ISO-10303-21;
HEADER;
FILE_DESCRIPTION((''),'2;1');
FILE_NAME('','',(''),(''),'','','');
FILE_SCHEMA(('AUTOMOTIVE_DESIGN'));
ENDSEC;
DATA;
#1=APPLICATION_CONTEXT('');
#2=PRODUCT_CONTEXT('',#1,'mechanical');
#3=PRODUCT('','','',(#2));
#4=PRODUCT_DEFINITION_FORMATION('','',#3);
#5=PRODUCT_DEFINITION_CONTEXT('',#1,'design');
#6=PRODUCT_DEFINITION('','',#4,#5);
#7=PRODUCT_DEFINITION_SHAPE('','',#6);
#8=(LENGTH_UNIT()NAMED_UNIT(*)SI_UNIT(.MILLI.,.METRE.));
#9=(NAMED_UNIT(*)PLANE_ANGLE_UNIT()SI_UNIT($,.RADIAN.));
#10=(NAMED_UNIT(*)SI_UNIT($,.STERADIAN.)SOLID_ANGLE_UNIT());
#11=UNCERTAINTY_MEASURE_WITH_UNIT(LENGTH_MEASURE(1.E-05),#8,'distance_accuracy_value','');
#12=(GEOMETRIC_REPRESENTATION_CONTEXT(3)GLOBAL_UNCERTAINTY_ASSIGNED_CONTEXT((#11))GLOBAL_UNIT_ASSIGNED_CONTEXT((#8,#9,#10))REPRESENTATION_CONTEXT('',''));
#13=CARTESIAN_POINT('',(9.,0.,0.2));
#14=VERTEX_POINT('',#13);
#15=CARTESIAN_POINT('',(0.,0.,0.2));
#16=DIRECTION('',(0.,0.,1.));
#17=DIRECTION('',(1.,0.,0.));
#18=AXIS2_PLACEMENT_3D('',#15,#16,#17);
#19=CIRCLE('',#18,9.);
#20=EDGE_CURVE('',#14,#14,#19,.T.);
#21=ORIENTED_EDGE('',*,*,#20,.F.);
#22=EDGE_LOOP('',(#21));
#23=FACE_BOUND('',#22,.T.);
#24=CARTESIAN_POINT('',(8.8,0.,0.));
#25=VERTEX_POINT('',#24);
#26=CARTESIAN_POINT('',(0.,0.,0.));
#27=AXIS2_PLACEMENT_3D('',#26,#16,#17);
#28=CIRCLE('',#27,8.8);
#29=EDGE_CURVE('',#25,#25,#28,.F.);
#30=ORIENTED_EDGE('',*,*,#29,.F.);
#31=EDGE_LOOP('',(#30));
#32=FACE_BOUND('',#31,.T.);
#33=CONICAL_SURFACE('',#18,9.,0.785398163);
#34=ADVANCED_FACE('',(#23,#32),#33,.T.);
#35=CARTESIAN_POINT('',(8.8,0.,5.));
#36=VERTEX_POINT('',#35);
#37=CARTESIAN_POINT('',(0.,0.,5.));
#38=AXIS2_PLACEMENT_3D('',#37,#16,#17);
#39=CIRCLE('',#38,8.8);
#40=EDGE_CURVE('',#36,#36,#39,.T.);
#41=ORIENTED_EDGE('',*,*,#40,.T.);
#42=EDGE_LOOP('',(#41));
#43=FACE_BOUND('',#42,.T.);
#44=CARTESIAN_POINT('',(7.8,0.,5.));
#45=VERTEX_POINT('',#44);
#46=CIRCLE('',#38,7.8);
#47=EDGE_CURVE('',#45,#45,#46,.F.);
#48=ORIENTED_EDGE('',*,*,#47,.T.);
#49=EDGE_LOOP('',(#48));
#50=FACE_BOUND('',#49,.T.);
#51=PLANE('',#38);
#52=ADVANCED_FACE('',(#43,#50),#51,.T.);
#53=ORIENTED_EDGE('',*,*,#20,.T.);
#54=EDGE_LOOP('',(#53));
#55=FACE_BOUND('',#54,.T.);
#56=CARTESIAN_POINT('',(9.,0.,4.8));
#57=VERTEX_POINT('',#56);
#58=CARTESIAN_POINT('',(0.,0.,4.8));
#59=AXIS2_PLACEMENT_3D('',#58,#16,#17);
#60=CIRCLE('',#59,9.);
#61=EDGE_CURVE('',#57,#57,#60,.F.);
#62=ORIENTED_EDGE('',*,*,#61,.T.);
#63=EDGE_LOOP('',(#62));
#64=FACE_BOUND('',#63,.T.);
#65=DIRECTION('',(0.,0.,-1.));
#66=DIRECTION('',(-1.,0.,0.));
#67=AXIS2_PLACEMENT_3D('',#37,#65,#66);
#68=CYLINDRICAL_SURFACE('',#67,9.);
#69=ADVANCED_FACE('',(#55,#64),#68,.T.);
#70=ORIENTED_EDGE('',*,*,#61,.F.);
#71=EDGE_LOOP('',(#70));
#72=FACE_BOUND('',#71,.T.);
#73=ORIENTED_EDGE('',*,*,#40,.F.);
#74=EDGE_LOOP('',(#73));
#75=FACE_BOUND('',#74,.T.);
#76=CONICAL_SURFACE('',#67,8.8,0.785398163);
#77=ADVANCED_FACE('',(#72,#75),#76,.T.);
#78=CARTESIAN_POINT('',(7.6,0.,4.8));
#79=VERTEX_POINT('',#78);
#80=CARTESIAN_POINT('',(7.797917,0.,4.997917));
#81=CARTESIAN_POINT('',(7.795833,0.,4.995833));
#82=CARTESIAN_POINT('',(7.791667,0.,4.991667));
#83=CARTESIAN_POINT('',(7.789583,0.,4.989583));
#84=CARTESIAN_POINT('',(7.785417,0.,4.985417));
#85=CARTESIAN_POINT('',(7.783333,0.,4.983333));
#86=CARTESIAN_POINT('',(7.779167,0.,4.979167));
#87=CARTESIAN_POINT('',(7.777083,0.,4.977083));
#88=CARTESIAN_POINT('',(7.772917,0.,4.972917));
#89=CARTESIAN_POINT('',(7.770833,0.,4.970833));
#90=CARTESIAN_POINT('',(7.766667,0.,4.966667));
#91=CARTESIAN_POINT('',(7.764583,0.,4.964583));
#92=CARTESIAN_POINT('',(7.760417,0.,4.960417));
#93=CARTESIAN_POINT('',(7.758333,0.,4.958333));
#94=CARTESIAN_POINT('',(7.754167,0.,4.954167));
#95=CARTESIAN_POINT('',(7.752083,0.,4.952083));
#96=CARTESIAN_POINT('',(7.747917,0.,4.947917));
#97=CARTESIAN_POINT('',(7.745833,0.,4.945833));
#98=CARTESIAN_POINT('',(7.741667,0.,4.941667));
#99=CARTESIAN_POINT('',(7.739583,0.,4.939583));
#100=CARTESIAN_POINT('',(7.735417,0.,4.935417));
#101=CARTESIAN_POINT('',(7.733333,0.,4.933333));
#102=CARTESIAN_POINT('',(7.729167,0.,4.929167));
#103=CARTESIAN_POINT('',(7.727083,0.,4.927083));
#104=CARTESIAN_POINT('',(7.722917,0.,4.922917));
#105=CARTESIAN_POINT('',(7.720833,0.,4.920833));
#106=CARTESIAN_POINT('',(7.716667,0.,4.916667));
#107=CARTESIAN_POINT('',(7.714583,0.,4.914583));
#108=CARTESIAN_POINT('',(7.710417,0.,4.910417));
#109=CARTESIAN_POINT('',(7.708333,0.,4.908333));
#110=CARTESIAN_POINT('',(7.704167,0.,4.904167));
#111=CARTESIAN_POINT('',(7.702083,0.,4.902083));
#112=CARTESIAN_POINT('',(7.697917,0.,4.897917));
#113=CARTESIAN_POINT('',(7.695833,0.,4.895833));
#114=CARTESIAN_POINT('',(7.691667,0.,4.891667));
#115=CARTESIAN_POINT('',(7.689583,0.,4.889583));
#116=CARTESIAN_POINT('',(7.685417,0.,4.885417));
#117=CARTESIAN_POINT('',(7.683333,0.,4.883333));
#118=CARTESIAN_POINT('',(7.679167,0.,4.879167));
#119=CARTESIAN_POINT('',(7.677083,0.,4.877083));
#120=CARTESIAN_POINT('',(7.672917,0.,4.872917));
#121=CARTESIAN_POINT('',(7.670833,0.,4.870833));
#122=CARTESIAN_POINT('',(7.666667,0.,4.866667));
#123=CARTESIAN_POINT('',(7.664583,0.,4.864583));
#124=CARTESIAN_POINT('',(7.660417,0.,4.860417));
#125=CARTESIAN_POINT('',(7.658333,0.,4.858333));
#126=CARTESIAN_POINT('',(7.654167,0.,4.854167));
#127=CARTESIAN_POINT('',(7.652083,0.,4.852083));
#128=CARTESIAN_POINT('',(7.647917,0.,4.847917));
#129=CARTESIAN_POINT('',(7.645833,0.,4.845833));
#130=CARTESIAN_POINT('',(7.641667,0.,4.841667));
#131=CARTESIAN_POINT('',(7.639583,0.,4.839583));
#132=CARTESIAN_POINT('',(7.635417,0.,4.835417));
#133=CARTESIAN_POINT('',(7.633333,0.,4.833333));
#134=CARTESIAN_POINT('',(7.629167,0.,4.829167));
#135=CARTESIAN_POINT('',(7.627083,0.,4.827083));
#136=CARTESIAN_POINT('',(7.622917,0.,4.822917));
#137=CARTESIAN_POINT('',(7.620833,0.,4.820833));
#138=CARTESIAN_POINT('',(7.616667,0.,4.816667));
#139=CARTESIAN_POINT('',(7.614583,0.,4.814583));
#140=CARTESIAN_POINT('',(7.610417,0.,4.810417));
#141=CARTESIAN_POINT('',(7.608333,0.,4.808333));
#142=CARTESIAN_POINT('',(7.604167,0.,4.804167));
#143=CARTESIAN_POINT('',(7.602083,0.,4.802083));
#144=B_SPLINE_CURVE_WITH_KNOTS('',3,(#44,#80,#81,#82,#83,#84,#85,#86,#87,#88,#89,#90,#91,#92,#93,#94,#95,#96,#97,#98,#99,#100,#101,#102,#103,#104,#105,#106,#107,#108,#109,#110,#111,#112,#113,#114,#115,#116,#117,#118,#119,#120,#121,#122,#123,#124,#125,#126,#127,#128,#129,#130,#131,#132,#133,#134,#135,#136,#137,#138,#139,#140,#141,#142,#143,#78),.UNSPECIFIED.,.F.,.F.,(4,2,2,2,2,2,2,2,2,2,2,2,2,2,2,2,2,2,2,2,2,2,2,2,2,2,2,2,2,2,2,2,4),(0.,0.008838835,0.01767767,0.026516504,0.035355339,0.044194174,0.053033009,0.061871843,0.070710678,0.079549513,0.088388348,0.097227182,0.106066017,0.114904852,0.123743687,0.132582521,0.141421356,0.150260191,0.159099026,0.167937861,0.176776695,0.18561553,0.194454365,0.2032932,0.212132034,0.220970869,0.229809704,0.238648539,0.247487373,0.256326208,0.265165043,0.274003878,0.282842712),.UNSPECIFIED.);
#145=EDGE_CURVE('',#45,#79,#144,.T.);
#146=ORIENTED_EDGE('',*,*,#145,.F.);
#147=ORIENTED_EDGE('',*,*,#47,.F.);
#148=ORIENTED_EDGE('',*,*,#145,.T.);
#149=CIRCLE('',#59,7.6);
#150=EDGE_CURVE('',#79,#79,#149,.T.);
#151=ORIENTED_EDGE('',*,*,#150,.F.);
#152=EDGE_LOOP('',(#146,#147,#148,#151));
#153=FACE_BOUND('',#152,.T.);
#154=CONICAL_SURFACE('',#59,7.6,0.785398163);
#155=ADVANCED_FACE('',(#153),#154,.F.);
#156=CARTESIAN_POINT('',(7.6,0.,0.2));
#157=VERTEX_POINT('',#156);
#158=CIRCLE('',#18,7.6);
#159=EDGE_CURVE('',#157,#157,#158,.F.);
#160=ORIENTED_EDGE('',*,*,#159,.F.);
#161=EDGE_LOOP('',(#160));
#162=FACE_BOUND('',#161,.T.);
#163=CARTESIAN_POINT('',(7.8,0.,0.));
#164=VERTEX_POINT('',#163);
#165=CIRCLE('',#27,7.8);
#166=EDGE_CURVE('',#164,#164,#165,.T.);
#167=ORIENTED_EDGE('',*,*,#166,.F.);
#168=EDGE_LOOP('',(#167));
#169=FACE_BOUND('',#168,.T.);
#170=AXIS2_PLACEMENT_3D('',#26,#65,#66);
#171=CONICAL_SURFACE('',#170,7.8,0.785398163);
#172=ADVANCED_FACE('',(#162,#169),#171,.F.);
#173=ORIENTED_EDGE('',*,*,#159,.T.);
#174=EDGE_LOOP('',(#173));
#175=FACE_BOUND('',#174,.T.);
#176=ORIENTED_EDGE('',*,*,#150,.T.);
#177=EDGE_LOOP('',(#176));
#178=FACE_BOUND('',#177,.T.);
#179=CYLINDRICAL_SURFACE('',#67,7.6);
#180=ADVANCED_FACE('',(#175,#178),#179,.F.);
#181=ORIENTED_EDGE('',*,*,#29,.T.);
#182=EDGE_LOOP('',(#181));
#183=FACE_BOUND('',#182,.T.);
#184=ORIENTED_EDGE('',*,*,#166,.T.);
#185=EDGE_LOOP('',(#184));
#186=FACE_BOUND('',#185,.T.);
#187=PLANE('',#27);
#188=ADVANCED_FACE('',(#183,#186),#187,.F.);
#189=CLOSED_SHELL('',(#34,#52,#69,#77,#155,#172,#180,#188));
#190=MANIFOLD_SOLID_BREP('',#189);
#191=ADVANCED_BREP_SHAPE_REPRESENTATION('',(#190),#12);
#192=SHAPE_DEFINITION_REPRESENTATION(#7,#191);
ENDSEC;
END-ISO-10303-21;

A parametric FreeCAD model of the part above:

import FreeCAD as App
import Part
import Sketcher
Q = App.Units.Quantity


def edges_at(feature, points):
    """Names of the edges that pass closest to the given points."""
    edges = feature.Shape.Edges
    near = lambda p: min(range(len(edges)), key=lambda i: edges[i].distToShape(Part.Vertex(*p))[0])
    return sorted({f"Edge{near(p) + 1}" for p in points})

doc = App.newDocument("Part")
body = doc.addObject("PartDesign::Body", "Body")

# Sketch on XY plane
sketch1 = body.newObject("Sketcher::SketchObject", "Sketch")
sketch1.AttachmentSupport = (doc.getObject("XY_Plane"), [""])
sketch1.MapMode = "FlatFace"
sketch1.addGeometry(Part.Circle(App.Vector(0, 0, 0), App.Vector(0, 0, 1), 9), False)
sketch1.addGeometry(Part.Circle(App.Vector(0, 0, 0), App.Vector(0, 0, 1), 8), False)
sketch1.addConstraint(Sketcher.Constraint("Coincident", 0, 3, -1, 1))
sketch1.addConstraint(Sketcher.Constraint("Coincident", 1, 3, -1, 1))
sketch1.addConstraint(Sketcher.Constraint("Diameter", 0, Q("18 mm")))
sketch1.addConstraint(Sketcher.Constraint("Diameter", 1, Q("15.2 mm")))
pad1 = body.newObject("PartDesign::Pad", "Pad")
pad1.Profile = sketch1
pad1.Length = 5
doc.recompute()

chamfer = body.newObject("PartDesign::Chamfer", "Chamfer")
chamfer.Base = (pad1, edges_at(pad1, [
    (-9, 0, 0),
    (-9, 0, 5),
    (-7.6, 0, 0),
    (-7.6, 0, 5),
]))
chamfer.Size = 0.2

doc.recompute()
